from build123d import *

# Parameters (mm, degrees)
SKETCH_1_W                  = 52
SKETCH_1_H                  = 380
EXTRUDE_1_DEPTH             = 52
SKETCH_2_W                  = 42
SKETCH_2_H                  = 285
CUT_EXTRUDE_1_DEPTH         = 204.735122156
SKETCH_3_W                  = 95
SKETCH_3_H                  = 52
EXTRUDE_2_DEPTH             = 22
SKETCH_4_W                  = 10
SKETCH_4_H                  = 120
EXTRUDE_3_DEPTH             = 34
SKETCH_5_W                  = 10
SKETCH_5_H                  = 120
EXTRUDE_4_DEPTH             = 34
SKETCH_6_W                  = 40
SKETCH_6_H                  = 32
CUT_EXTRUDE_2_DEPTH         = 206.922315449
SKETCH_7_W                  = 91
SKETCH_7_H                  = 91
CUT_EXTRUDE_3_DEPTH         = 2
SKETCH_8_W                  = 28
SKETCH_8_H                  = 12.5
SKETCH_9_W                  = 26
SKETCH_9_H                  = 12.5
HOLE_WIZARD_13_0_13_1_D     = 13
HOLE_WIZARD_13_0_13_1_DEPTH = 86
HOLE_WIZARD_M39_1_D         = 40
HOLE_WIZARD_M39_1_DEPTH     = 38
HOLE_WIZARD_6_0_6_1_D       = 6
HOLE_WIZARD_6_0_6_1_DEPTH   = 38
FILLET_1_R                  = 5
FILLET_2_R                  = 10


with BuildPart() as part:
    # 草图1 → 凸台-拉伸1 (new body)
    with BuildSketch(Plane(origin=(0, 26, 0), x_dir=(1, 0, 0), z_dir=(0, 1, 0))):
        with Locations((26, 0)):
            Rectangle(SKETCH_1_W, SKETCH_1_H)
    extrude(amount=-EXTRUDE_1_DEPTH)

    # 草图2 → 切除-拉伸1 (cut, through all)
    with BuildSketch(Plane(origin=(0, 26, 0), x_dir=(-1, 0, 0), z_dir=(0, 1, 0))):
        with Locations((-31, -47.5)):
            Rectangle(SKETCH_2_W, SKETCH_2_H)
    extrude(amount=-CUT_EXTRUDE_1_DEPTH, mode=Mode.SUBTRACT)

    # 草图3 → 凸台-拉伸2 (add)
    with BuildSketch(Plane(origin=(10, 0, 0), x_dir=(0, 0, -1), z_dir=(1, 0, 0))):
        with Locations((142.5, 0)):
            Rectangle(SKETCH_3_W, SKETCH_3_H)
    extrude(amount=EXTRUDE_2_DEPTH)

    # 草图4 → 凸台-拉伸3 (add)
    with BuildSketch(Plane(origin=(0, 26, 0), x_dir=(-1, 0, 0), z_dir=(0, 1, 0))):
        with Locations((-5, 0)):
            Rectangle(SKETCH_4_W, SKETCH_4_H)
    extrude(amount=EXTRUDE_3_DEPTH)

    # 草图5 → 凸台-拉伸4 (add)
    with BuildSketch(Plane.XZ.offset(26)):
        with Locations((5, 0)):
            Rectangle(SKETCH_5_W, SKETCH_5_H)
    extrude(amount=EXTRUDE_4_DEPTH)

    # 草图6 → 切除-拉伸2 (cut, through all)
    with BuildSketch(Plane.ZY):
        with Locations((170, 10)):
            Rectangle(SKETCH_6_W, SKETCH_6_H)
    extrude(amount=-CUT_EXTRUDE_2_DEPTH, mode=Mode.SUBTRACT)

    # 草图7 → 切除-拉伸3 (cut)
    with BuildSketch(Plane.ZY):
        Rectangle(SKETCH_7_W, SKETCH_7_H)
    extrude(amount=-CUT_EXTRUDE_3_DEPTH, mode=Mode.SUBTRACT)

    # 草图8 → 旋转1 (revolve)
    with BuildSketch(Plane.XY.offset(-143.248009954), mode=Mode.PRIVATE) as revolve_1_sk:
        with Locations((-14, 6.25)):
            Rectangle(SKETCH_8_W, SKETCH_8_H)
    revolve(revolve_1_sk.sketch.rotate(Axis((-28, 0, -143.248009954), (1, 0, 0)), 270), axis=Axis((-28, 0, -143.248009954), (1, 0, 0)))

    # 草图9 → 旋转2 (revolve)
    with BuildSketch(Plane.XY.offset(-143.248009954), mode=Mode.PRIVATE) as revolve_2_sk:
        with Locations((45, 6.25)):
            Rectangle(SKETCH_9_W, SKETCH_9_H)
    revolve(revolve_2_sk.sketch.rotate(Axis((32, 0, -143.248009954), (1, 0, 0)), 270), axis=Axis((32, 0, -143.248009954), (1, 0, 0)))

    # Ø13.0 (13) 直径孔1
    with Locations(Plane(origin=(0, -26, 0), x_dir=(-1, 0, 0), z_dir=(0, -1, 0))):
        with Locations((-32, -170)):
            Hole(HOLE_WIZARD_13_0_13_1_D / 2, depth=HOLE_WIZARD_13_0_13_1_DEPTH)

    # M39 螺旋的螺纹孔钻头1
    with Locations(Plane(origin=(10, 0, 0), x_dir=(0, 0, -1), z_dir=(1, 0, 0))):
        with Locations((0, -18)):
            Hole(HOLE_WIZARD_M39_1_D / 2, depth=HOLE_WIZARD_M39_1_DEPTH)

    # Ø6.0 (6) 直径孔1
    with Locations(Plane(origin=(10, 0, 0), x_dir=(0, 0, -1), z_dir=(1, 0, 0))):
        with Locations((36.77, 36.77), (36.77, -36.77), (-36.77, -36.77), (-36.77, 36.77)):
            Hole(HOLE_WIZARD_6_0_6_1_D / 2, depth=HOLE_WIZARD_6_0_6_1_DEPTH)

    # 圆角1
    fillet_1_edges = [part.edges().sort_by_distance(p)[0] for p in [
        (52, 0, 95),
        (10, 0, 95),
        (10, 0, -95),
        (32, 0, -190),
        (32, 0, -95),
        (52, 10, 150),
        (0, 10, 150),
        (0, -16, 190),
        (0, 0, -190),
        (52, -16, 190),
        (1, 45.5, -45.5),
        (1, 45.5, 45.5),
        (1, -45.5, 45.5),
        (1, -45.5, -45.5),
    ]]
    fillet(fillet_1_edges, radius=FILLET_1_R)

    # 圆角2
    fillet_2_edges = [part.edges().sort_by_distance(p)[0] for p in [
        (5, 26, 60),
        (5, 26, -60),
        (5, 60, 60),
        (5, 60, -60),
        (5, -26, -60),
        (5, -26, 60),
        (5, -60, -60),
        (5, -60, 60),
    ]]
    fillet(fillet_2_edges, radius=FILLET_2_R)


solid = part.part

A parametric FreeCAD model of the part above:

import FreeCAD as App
import Part
import Sketcher
from FreeCAD import Vector


def edges_at(feature, points):
    """Names of the edges that pass closest to the given points."""
    edges = feature.Shape.Edges
    near = lambda p: min(range(len(edges)), key=lambda i: edges[i].distToShape(Part.Vertex(*p))[0])
    return sorted({f"Edge{near(p) + 1}" for p in points})

doc = App.newDocument("Part")
params = doc.addObject("Spreadsheet::Sheet", "Params")
for row, (alias, value) in enumerate([
    ("sketch1_width", "52 mm"),
    ("sketch1_height", "380 mm"),
    ("pad1_length", "52 mm"),
    ("sketch2_width", "42 mm"),
    ("sketch2_height", "285 mm"),
    ("sketch3_width", "52 mm"),
    ("sketch3_height", "95 mm"),
    ("pad2_length", "22 mm"),
    ("sketch4_width", "10 mm"),
    ("sketch4_height", "120 mm"),
    ("pad3_length", "34 mm"),
    ("sketch5_width", "10 mm"),
    ("sketch5_height", "120 mm"),
    ("pad4_length", "34 mm"),
    ("sketch6_width", "32 mm"),
    ("sketch6_height", "40 mm"),
    ("sketch7_width", "91 mm"),
    ("pocket3_length", "2 mm"),
    ("sketch8_width", "28 mm"),
    ("sketch8_height", "12.5 mm"),
    ("revolution_angle", "360 deg"),
    ("sketch9_width", "26 mm"),
    ("sketch9_height", "12.5 mm"),
    ("revolution2_angle", "360 deg"),
    ("sketch10_diameter", "13 mm"),
    ("hole_diameter", "13 mm"),
    ("hole_depth", "86 mm"),
    ("sketch11_diameter", "40 mm"),
    ("hole2_diameter", "40 mm"),
    ("hole2_depth", "38 mm"),
    ("sketch12_diameter", "6 mm"),
    ("hole3_diameter", "6 mm"),
    ("hole3_depth", "38 mm"),
    ("fillet_radius", "5 mm"),
    ("fillet2_radius", "10 mm"),
], start=1):
    params.set(f"A{row}", alias)
    params.set(f"B{row}", "=" + value)
    params.setAlias(f"B{row}", alias)

body = doc.addObject("PartDesign::Body", "Body")

# Sketch on XZ plane
sketch1 = body.newObject("Sketcher::SketchObject", "Sketch")
sketch1.AttachmentSupport = (doc.getObject("XZ_Plane"), [""])
sketch1.MapMode = "FlatFace"
sketch1.AttachmentOffset = App.Placement(Vector(0, 0, -26), App.Rotation())
sketch1.addGeometry([
    Part.LineSegment(Vector(0, -190, 0), Vector(0, 190, 0)),
    Part.LineSegment(Vector(0, 190, 0), Vector(52, 190, 0)),
    Part.LineSegment(Vector(52, 190, 0), Vector(52, -190, 0)),
    Part.LineSegment(Vector(52, -190, 0), Vector(0, -190, 0)),
], False)
sketch1.addConstraint([
    Sketcher.Constraint("Coincident", 0, 2, 1, 1),
    Sketcher.Constraint("Coincident", 1, 2, 2, 1),
    Sketcher.Constraint("Coincident", 2, 2, 3, 1),
    Sketcher.Constraint("Coincident", 3, 2, 0, 1),
    Sketcher.Constraint("Vertical", 0),
    Sketcher.Constraint("Horizontal", 1),
    Sketcher.Constraint("Vertical", 2),
    Sketcher.Constraint("Horizontal", 3),
    Sketcher.Constraint("Symmetric", 0, 2, 3, 2, -1, 1),
    Sketcher.Constraint("DistanceX", 1, 1, 1, 2, 52.0),
    Sketcher.Constraint("DistanceY", 0, 1, 0, 2, 380.0),
])
sketch1.setExpression("Constraints[9]", "Params.sketch1_width")
sketch1.setExpression("Constraints[10]", "Params.sketch1_height")
pad1 = body.newObject("PartDesign::Pad", "Pad")
pad1.Profile = sketch1
pad1.setExpression("Length", "Params.pad1_length")

# Sketch on XZ plane
sketch2 = body.newObject("Sketcher::SketchObject", "Sketch001")
sketch2.AttachmentSupport = (doc.getObject("XZ_Plane"), [""])
sketch2.MapMode = "FlatFace"
sketch2.AttachmentOffset = App.Placement(Vector(0, 0, -26), App.Rotation())
sketch2.addGeometry([
    Part.LineSegment(Vector(52, 95, 0), Vector(52, -190, 0)),
    Part.LineSegment(Vector(52, -190, 0), Vector(10, -190, 0)),
    Part.LineSegment(Vector(10, -190, 0), Vector(10, 95, 0)),
    Part.LineSegment(Vector(10, 95, 0), Vector(52, 95, 0)),
], False)
sketch2.addConstraint([
    Sketcher.Constraint("Coincident", 0, 2, 1, 1),
    Sketcher.Constraint("Coincident", 1, 2, 2, 1),
    Sketcher.Constraint("Coincident", 2, 2, 3, 1),
    Sketcher.Constraint("Coincident", 3, 2, 0, 1),
    Sketcher.Constraint("Vertical", 0),
    Sketcher.Constraint("Horizontal", 1),
    Sketcher.Constraint("Vertical", 2),
    Sketcher.Constraint("Horizontal", 3),
    Sketcher.Constraint("DistanceX", 1, 2, 1, 1, 42.0),
    Sketcher.Constraint("DistanceY", 0, 2, 0, 1, 285.0),
    Sketcher.Constraint("DistanceX", -1, 1, 0, 2, 52.0),
    Sketcher.Constraint("DistanceY", 0, 2, -1, 1, 190.0),
])
sketch2.setExpression("Constraints[8]", "Params.sketch2_width")
sketch2.setExpression("Constraints[9]", "Params.sketch2_height")
pocket1 = body.newObject("PartDesign::Pocket", "Pocket")
pocket1.Profile = sketch2
pocket1.Type = "ThroughAll"
pocket1.Reversed = True

# Sketch on YZ plane
sketch3 = body.newObject("Sketcher::SketchObject", "Sketch002")
sketch3.AttachmentSupport = (doc.getObject("YZ_Plane"), [""])
sketch3.MapMode = "FlatFace"
sketch3.AttachmentOffset = App.Placement(Vector(0, 0, 10), App.Rotation())
sketch3.addGeometry([
    Part.LineSegment(Vector(26, -95, 0), Vector(-26, -95, 0)),
    Part.LineSegment(Vector(-26, -95, 0), Vector(-26, -190, 0)),
    Part.LineSegment(Vector(-26, -190, 0), Vector(26, -190, 0)),
    Part.LineSegment(Vector(26, -190, 0), Vector(26, -95, 0)),
], False)
sketch3.addConstraint([
    Sketcher.Constraint("Coincident", 0, 2, 1, 1),
    Sketcher.Constraint("Coincident", 1, 2, 2, 1),
    Sketcher.Constraint("Coincident", 2, 2, 3, 1),
    Sketcher.Constraint("Coincident", 3, 2, 0, 1),
    Sketcher.Constraint("Horizontal", 0),
    Sketcher.Constraint("Vertical", 1),
    Sketcher.Constraint("Horizontal", 2),
    Sketcher.Constraint("Vertical", 3),
    Sketcher.Constraint("DistanceX", 0, 2, 0, 1, 52.0),
    Sketcher.Constraint("DistanceY", 1, 2, 1, 1, 95.0),
    Sketcher.Constraint("DistanceX", 0, 2, -1, 1, 26.0),
    Sketcher.Constraint("DistanceY", 0, 2, -1, 1, 95.0),
])
sketch3.setExpression("Constraints[8]", "Params.sketch3_width")
sketch3.setExpression("Constraints[9]", "Params.sketch3_height")
pad2 = body.newObject("PartDesign::Pad", "Pad001")
pad2.Profile = sketch3
pad2.setExpression("Length", "Params.pad2_length")

# Sketch on XZ plane
sketch4 = body.newObject("Sketcher::SketchObject", "Sketch003")
sketch4.AttachmentSupport = (doc.getObject("XZ_Plane"), [""])
sketch4.MapMode = "FlatFace"
sketch4.AttachmentOffset = App.Placement(Vector(0, 0, -26), App.Rotation())
sketch4.addGeometry([
    Part.LineSegment(Vector(10, 60, 0), Vector(10, -60, 0)),
    Part.LineSegment(Vector(10, -60, 0), Vector(0, -60, 0)),
    Part.LineSegment(Vector(0, -60, 0), Vector(0, 60, 0)),
    Part.LineSegment(Vector(0, 60, 0), Vector(10, 60, 0)),
], False)
sketch4.addConstraint([
    Sketcher.Constraint("Coincident", 0, 2, 1, 1),
    Sketcher.Constraint("Coincident", 1, 2, 2, 1),
    Sketcher.Constraint("Coincident", 2, 2, 3, 1),
    Sketcher.Constraint("Coincident", 3, 2, 0, 1),
    Sketcher.Constraint("Vertical", 0),
    Sketcher.Constraint("Horizontal", 1),
    Sketcher.Constraint("Vertical", 2),
    Sketcher.Constraint("Horizontal", 3),
    Sketcher.Constraint("Symmetric", 1, 2, 2, 2, -1, 1),
    Sketcher.Constraint("DistanceX", 1, 2, 1, 1, 10.0),
    Sketcher.Constraint("DistanceY", 0, 2, 0, 1, 120.0),
])
sketch4.setExpression("Constraints[9]", "Params.sketch4_width")
sketch4.setExpression("Constraints[10]", "Params.sketch4_height")
pad3 = body.newObject("PartDesign::Pad", "Pad002")
pad3.Profile = sketch4
pad3.setExpression("Length", "Params.pad3_length")
pad3.Reversed = True

# Sketch on XZ plane
sketch5 = body.newObject("Sketcher::SketchObject", "Sketch004")
sketch5.AttachmentSupport = (doc.getObject("XZ_Plane"), [""])
sketch5.MapMode = "FlatFace"
sketch5.AttachmentOffset = App.Placement(Vector(0, 0, 26), App.Rotation())
sketch5.addGeometry([
    Part.LineSegment(Vector(0, 60, 0), Vector(0, -60, 0)),
    Part.LineSegment(Vector(0, -60, 0), Vector(10, -60, 0)),
    Part.LineSegment(Vector(10, -60, 0), Vector(10, 60, 0)),
    Part.LineSegment(Vector(10, 60, 0), Vector(0, 60, 0)),
], False)
sketch5.addConstraint([
    Sketcher.Constraint("Coincident", 0, 2, 1, 1),
    Sketcher.Constraint("Coincident", 1, 2, 2, 1),
    Sketcher.Constraint("Coincident", 2, 2, 3, 1),
    Sketcher.Constraint("Coincident", 3, 2, 0, 1),
    Sketcher.Constraint("Vertical", 0),
    Sketcher.Constraint("Horizontal", 1),
    Sketcher.Constraint("Vertical", 2),
    Sketcher.Constraint("Horizontal", 3),
    Sketcher.Constraint("Symmetric", 0, 2, 3, 2, -1, 1),
    Sketcher.Constraint("DistanceX", 1, 1, 1, 2, 10.0),
    Sketcher.Constraint("DistanceY", 0, 2, 0, 1, 120.0),
])
sketch5.setExpression("Constraints[9]", "Params.sketch5_width")
sketch5.setExpression("Constraints[10]", "Params.sketch5_height")
pad4 = body.newObject("PartDesign::Pad", "Pad003")
pad4.Profile = sketch5
pad4.setExpression("Length", "Params.pad4_length")

# Sketch on YZ plane
sketch6 = body.newObject("Sketcher::SketchObject", "Sketch005")
sketch6.AttachmentSupport = (doc.getObject("YZ_Plane"), [""])
sketch6.MapMode = "FlatFace"
sketch6.addGeometry([
    Part.LineSegment(Vector(26, 150, 0), Vector(-6, 150, 0)),
    Part.LineSegment(Vector(-6, 150, 0), Vector(-6, 190, 0)),
    Part.LineSegment(Vector(-6, 190, 0), Vector(26, 190, 0)),
    Part.LineSegment(Vector(26, 190, 0), Vector(26, 150, 0)),
], False)
sketch6.addConstraint([
    Sketcher.Constraint("Coincident", 0, 2, 1, 1),
    Sketcher.Constraint("Coincident", 1, 2, 2, 1),
    Sketcher.Constraint("Coincident", 2, 2, 3, 1),
    Sketcher.Constraint("Coincident", 3, 2, 0, 1),
    Sketcher.Constraint("Horizontal", 0),
    Sketcher.Constraint("Vertical", 1),
    Sketcher.Constraint("Horizontal", 2),
    Sketcher.Constraint("Vertical", 3),
    Sketcher.Constraint("DistanceX", 0, 2, 0, 1, 32.0),
    Sketcher.Constraint("DistanceY", 1, 1, 1, 2, 40.0),
    Sketcher.Constraint("DistanceX", 0, 2, -1, 1, 6.0),
    Sketcher.Constraint("DistanceY", -1, 1, 0, 2, 150.0),
])
sketch6.setExpression("Constraints[8]", "Params.sketch6_width")
sketch6.setExpression("Constraints[9]", "Params.sketch6_height")
pocket2 = body.newObject("PartDesign::Pocket", "Pocket001")
pocket2.Profile = sketch6
pocket2.Type = "ThroughAll"
pocket2.Reversed = True

# Sketch on YZ plane
sketch7 = body.newObject("Sketcher::SketchObject", "Sketch006")
sketch7.AttachmentSupport = (doc.getObject("YZ_Plane"), [""])
sketch7.MapMode = "FlatFace"
sketch7.addGeometry([
    Part.LineSegment(Vector(46, -46, 0), Vector(-46, -46, 0)),
    Part.LineSegment(Vector(-46, -46, 0), Vector(-46, 46, 0)),
    Part.LineSegment(Vector(-46, 46, 0), Vector(46, 46, 0)),
    Part.LineSegment(Vector(46, 46, 0), Vector(46, -46, 0)),
], False)
sketch7.addConstraint([
    Sketcher.Constraint("Coincident", 0, 2, 1, 1),
    Sketcher.Constraint("Coincident", 1, 2, 2, 1),
    Sketcher.Constraint("Coincident", 2, 2, 3, 1),
    Sketcher.Constraint("Coincident", 3, 2, 0, 1),
    Sketcher.Constraint("Horizontal", 0),
    Sketcher.Constraint("Vertical", 1),
    Sketcher.Constraint("Horizontal", 2),
    Sketcher.Constraint("Vertical", 3),
    Sketcher.Constraint("Symmetric", 0, 2, 2, 2, -1, 1),
    Sketcher.Constraint("Equal", 2, 1),
    Sketcher.Constraint("DistanceX", 0, 2, 0, 1, 91.0),
])
sketch7.setExpression("Constraints[10]", "Params.sketch7_width")
pocket3 = body.newObject("PartDesign::Pocket", "Pocket002")
pocket3.Profile = sketch7
pocket3.setExpression("Length", "Params.pocket3_length")
pocket3.Reversed = True

# Sketch on XY plane
sketch8 = body.newObject("Sketcher::SketchObject", "Sketch007")
sketch8.AttachmentSupport = (doc.getObject("XY_Plane"), [""])
sketch8.MapMode = "FlatFace"
sketch8.AttachmentOffset = App.Placement(Vector(0, 0, -143.24801), App.Rotation())
sketch8.addGeometry([
    Part.LineSegment(Vector(-28, 12, 0), Vector(-28, 0, 0)),
    Part.LineSegment(Vector(-28, 0, 0), Vector(0, 0, 0)),
    Part.LineSegment(Vector(0, 0, 0), Vector(0, 12, 0)),
    Part.LineSegment(Vector(0, 12, 0), Vector(-28, 12, 0)),
], False)
sketch8.addConstraint([
    Sketcher.Constraint("Coincident", 0, 2, 1, 1),
    Sketcher.Constraint("Coincident", 1, 2, 2, 1),
    Sketcher.Constraint("Coincident", 2, 2, 3, 1),
    Sketcher.Constraint("Coincident", 3, 2, 0, 1),
    Sketcher.Constraint("Vertical", 0),
    Sketcher.Constraint("Horizontal", 1),
    Sketcher.Constraint("Vertical", 2),
    Sketcher.Constraint("Horizontal", 3),
    Sketcher.Constraint("Coincident", 1, 2, -1, 1),
    Sketcher.Constraint("DistanceX", 1, 1, 1, 2, 28.0),
    Sketcher.Constraint("DistanceY", 0, 2, 0, 1, 12.5),
])
sketch8.setExpression("Constraints[9]", "Params.sketch8_width")
sketch8.setExpression("Constraints[10]", "Params.sketch8_height")
revolution = body.newObject("PartDesign::Revolution", "Revolution")
revolution.Profile = sketch8
revolution.ReferenceAxis = (sketch8, ["H_Axis"])
revolution.setExpression("Angle", "Params.revolution_angle")

# Sketch on XY plane
sketch9 = body.newObject("Sketcher::SketchObject", "Sketch008")
sketch9.AttachmentSupport = (doc.getObject("XY_Plane"), [""])
sketch9.MapMode = "FlatFace"
sketch9.AttachmentOffset = App.Placement(Vector(0, 0, -143.24801), App.Rotation())
sketch9.addGeometry([
    Part.LineSegment(Vector(32, 12, 0), Vector(32, 0, 0)),
    Part.LineSegment(Vector(32, 0, 0), Vector(58, 0, 0)),
    Part.LineSegment(Vector(58, 0, 0), Vector(58, 12, 0)),
    Part.LineSegment(Vector(58, 12, 0), Vector(32, 12, 0)),
], False)
sketch9.addConstraint([
    Sketcher.Constraint("Coincident", 0, 2, 1, 1),
    Sketcher.Constraint("Coincident", 1, 2, 2, 1),
    Sketcher.Constraint("Coincident", 2, 2, 3, 1),
    Sketcher.Constraint("Coincident", 3, 2, 0, 1),
    Sketcher.Constraint("Vertical", 0),
    Sketcher.Constraint("Horizontal", 1),
    Sketcher.Constraint("Vertical", 2),
    Sketcher.Constraint("Horizontal", 3),
    Sketcher.Constraint("PointOnObject", 0, 2, -1),
    Sketcher.Constraint("DistanceX", 1, 1, 1, 2, 26.0),
    Sketcher.Constraint("DistanceY", 0, 2, 0, 1, 12.5),
    Sketcher.Constraint("DistanceX", -1, 1, 0, 2, 32.0),
])
sketch9.setExpression("Constraints[9]", "Params.sketch9_width")
sketch9.setExpression("Constraints[10]", "Params.sketch9_height")
revolution2 = body.newObject("PartDesign::Revolution", "Revolution001")
revolution2.Profile = sketch9
revolution2.ReferenceAxis = (sketch9, ["H_Axis"])
revolution2.setExpression("Angle", "Params.revolution2_angle")

# Sketch on XZ plane
sketch10 = body.newObject("Sketcher::SketchObject", "Sketch009")
sketch10.AttachmentSupport = (doc.getObject("XZ_Plane"), [""])
sketch10.MapMode = "FlatFace"
sketch10.AttachmentOffset = App.Placement(Vector(0, 0, 26), App.Rotation())
sketch10.addGeometry(Part.Circle(Vector(32, 170, 0), Vector(0, 0, 1), 6), False)
sketch10.addConstraint([
    Sketcher.Constraint("Diameter", 0, 13.0),
    Sketcher.Constraint("DistanceX", -1, 1, 0, 3, 32.0),
    Sketcher.Constraint("DistanceY", -1, 1, 0, 3, 170.0),
])
sketch10.setExpression("Constraints[0]", "Params.sketch10_diameter")
doc.recompute()
hole = body.newObject("PartDesign::Hole", "Hole")
hole.Profile = sketch10
hole.ThreadType = "None"
hole.setExpression("Diameter", "Params.hole_diameter")
hole.DepthType = "Dimension"
hole.setExpression("Depth", "Params.hole_depth")
hole.DrillPoint = "Flat"

# Sketch on YZ plane
sketch11 = body.newObject("Sketcher::SketchObject", "Sketch010")
sketch11.AttachmentSupport = (doc.getObject("YZ_Plane"), [""])
sketch11.MapMode = "FlatFace"
sketch11.AttachmentOffset = App.Placement(Vector(0, 0, 10), App.Rotation())
sketch11.addGeometry(Part.Circle(Vector(-18, 0, 0), Vector(0, 0, 1), 20), False)
sketch11.addConstraint([
    Sketcher.Constraint("PointOnObject", 0, 3, -1),
    Sketcher.Constraint("Diameter", 0, 40.0),
    Sketcher.Constraint("DistanceX", 0, 3, -1, 1, 18.0),
])
sketch11.setExpression("Constraints[1]", "Params.sketch11_diameter")
doc.recompute()
hole2 = body.newObject("PartDesign::Hole", "Hole001")
hole2.Profile = sketch11
hole2.ThreadType = "None"
hole2.setExpression("Diameter", "Params.hole2_diameter")
hole2.DepthType = "Dimension"
hole2.setExpression("Depth", "Params.hole2_depth")
hole2.DrillPoint = "Flat"

# Sketch on YZ plane
sketch12 = body.newObject("Sketcher::SketchObject", "Sketch011")
sketch12.AttachmentSupport = (doc.getObject("YZ_Plane"), [""])
sketch12.MapMode = "FlatFace"
sketch12.AttachmentOffset = App.Placement(Vector(0, 0, 10), App.Rotation())
sketch12.addGeometry([
    Part.Circle(Vector(36.8, -36.8, 0), Vector(0, 0, 1), 3),
    Part.Circle(Vector(-36.8, -36.8, 0), Vector(0, 0, 1), 3),
    Part.Circle(Vector(-36.8, 36.8, 0), Vector(0, 0, 1), 3),
    Part.Circle(Vector(36.8, 36.8, 0), Vector(0, 0, 1), 3),
], False)
sketch12.addConstraint([
    Sketcher.Constraint("Equal", 0, 1),
    Sketcher.Constraint("Equal", 1, 2),
    Sketcher.Constraint("Equal", 2, 3),
    Sketcher.Constraint("Symmetric", 0, 3, 2, 3, -1, 1),
    Sketcher.Constraint("Symmetric", 1, 3, 3, 3, -1, 1),
    Sketcher.Constraint("Symmetric", 0, 3, 1, 3, -2),
    Sketcher.Constraint("Diameter", 0, 6.0),
    Sketcher.Constraint("DistanceX", -1, 1, 0, 3, 36.77),
    Sketcher.Constraint("DistanceY", 0, 3, -1, 1, 36.77),
])
sketch12.setExpression("Constraints[6]", "Params.sketch12_diameter")
doc.recompute()
hole3 = body.newObject("PartDesign::Hole", "Hole002")
hole3.Profile = sketch12
hole3.ThreadType = "None"
hole3.setExpression("Diameter", "Params.hole3_diameter")
hole3.DepthType = "Dimension"
hole3.setExpression("Depth", "Params.hole3_depth")
hole3.DrillPoint = "Flat"
doc.recompute()

fillet = body.newObject("PartDesign::Fillet", "Fillet")
fillet.Base = (hole3, edges_at(hole3, [
    (52, 0, 95),
    (10, 0, 95),
    (10, 0, -95),
    (32, 0, -190),
    (32, 0, -95),
    (52, 10, 150),
    (0, 10, 150),
    (0, -16, 190),
    (0, 0, -190),
    (52, -16, 190),
    (1, 45.5, -45.5),
    (1, 45.5, 45.5),
    (1, -45.5, 45.5),
    (1, -45.5, -45.5),
]))
fillet.setExpression("Radius", "Params.fillet_radius")
doc.recompute()

fillet2 = body.newObject("PartDesign::Fillet", "Fillet001")
fillet2.Base = (fillet, edges_at(fillet, [
    (5, 26, 60),
    (5, 26, -60),
    (5, 60, 60),
    (5, 60, -60),
    (5, -26, -60),
    (5, -26, 60),
    (5, -60, -60),
    (5, -60, 60),
]))
fillet2.setExpression("Radius", "Params.fillet2_radius")

doc.recompute()
